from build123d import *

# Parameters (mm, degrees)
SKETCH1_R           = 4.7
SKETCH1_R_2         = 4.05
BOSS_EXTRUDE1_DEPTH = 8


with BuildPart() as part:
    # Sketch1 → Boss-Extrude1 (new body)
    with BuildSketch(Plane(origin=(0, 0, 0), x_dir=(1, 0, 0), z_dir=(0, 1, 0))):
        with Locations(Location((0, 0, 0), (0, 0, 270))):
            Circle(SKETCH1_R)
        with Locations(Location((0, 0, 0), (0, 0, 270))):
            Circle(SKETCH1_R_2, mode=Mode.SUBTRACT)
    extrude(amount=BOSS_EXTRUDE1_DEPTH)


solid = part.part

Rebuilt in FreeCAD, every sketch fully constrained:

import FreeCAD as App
import Part
import Sketcher
Q = App.Units.Quantity

doc = App.newDocument("Part")
body = doc.addObject("PartDesign::Body", "Body")

# Sketch on XZ plane
sketch1 = body.newObject("Sketcher::SketchObject", "Sketch")
sketch1.AttachmentSupport = (doc.getObject("XZ_Plane"), [""])
sketch1.MapMode = "FlatFace"
sketch1.addGeometry([
    Part.Circle(App.Vector(0, 0, 0), App.Vector(0, 0, 1), 4.7),
    Part.Circle(App.Vector(0, 0, 0), App.Vector(0, 0, 1), 4),
], False)
sketch1.addConstraint([
    Sketcher.Constraint("Coincident", 0, 3, -1, 1),
    Sketcher.Constraint("Coincident", 1, 3, -1, 1),
    Sketcher.Constraint("Diameter", 0, Q("9.4 mm")),
    Sketcher.Constraint("Diameter", 1, Q("8.1 mm")),
])
pad1 = body.newObject("PartDesign::Pad", "Pad")
pad1.Profile = sketch1
pad1.Length = 8
pad1.Reversed = True

doc.recompute()
